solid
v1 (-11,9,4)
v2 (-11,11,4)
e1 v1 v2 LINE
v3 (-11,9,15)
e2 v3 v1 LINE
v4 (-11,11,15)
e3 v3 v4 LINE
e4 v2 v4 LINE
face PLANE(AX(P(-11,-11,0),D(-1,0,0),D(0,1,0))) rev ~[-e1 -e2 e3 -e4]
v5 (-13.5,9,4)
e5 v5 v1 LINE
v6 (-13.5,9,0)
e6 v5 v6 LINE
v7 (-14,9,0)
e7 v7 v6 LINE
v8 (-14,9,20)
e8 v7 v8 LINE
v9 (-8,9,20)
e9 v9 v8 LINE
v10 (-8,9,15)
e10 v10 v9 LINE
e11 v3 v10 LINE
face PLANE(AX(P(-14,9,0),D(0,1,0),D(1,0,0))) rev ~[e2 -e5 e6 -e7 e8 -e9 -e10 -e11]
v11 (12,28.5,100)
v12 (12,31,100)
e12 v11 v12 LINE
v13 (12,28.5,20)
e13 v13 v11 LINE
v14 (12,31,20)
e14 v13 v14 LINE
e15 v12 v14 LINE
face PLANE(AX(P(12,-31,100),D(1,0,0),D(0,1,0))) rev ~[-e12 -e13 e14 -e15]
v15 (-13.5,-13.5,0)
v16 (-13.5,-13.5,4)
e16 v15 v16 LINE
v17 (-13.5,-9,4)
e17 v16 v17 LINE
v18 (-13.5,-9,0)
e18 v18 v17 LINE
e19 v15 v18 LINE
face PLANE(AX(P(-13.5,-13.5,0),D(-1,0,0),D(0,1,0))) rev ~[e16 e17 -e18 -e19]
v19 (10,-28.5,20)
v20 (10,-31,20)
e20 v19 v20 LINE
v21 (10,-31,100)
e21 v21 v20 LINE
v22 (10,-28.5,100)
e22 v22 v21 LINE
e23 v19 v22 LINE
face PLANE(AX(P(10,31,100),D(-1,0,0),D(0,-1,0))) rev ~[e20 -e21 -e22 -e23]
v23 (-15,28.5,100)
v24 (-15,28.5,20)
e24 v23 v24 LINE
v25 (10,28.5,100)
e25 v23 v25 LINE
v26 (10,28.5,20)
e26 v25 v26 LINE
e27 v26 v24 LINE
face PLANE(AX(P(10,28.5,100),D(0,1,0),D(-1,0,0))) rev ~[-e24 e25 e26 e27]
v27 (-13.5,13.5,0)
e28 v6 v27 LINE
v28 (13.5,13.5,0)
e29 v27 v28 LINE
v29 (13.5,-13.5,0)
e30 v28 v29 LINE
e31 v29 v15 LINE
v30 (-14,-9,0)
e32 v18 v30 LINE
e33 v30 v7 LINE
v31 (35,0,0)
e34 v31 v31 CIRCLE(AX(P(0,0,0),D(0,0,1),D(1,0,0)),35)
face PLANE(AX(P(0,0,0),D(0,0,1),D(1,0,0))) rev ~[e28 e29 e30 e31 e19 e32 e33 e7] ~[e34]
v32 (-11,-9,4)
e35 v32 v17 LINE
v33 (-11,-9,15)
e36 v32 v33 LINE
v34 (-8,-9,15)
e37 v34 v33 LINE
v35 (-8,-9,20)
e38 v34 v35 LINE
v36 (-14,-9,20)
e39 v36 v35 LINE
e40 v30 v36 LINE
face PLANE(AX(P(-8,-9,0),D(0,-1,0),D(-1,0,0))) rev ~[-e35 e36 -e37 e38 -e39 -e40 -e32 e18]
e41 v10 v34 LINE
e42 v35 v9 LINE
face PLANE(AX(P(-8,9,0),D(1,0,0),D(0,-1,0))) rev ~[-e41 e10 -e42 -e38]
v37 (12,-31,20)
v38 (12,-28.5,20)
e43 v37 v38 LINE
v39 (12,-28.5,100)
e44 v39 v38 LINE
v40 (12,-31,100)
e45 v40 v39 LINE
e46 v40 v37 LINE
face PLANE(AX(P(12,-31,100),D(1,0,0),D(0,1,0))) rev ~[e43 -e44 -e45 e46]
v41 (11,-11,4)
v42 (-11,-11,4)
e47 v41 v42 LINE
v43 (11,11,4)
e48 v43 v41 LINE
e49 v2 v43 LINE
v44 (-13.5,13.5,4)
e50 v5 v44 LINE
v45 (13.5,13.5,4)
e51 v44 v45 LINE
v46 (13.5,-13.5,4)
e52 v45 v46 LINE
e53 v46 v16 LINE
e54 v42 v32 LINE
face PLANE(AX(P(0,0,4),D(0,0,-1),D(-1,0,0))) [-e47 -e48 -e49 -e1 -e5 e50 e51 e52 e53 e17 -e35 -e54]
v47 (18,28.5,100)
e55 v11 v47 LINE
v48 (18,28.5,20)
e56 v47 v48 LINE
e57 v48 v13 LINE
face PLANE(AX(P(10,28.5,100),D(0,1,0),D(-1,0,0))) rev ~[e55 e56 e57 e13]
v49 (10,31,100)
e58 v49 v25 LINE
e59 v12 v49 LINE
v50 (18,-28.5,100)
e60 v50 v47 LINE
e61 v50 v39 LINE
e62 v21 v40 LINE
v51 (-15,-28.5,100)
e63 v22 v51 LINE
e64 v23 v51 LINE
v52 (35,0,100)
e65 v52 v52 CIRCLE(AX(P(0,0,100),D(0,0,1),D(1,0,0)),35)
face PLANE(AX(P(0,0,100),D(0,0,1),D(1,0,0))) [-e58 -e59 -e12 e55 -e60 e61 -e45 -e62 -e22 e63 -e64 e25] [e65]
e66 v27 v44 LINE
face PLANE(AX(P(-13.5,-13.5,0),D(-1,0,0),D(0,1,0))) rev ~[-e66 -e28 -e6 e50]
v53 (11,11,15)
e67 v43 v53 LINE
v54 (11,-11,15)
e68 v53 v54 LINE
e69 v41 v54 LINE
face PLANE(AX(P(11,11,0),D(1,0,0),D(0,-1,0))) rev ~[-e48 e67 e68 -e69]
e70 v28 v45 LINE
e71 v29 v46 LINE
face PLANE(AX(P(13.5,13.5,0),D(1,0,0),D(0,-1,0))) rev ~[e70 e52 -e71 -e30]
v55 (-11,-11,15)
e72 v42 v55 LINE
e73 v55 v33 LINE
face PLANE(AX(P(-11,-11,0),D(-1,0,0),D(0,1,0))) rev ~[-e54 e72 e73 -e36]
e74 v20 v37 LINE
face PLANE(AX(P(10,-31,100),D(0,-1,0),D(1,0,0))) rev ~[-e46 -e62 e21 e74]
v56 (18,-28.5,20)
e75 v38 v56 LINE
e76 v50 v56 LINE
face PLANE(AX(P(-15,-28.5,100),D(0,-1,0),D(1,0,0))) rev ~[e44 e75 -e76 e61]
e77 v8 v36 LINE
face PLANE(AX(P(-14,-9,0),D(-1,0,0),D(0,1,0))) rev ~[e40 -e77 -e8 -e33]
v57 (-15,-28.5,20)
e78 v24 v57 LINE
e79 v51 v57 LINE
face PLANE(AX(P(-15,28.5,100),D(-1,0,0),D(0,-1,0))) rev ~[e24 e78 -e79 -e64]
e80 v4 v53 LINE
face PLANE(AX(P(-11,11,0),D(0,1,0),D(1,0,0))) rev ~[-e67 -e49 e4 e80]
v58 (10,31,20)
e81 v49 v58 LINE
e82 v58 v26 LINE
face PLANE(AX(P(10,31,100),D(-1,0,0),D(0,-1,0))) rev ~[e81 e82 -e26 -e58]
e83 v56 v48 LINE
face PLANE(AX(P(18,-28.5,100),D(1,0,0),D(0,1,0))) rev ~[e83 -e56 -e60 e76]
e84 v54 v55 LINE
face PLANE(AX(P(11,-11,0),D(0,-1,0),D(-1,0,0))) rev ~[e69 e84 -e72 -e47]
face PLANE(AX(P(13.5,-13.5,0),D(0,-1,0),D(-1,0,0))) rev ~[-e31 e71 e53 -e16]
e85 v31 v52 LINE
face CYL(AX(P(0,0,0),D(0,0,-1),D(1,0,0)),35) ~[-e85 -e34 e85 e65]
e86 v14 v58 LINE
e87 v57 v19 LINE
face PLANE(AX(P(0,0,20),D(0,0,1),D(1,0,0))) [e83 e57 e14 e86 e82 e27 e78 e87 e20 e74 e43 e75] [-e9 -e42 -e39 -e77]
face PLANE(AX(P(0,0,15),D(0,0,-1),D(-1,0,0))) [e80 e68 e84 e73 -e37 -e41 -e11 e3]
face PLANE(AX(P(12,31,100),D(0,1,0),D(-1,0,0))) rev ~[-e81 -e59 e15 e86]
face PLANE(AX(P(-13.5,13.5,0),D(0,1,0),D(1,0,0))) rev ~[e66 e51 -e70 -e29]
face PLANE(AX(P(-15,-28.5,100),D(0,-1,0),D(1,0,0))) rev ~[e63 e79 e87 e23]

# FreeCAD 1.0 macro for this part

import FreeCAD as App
import Part
import Sketcher

doc = App.newDocument("Part")
body = doc.addObject("PartDesign::Body", "Body")

# Sketch on XY plane
sketch1 = body.newObject("Sketcher::SketchObject", "Sketch")
sketch1.AttachmentSupport = (doc.getObject("XY_Plane"), [""])
sketch1.MapMode = "FlatFace"
sketch1.addGeometry(Part.Circle(App.Vector(0, 0, 0), App.Vector(0, 0, 1), 35), False)
sketch1.addConstraint([
    Sketcher.Constraint("Coincident", 0, 3, -1, 1),
    Sketcher.Constraint("Diameter", 0, 70.0),
])
pad1 = body.newObject("PartDesign::Pad", "Pad")
pad1.Profile = sketch1
pad1.Length = 100

# Sketch on XY plane
sketch2 = body.newObject("Sketcher::SketchObject", "Sketch001")
sketch2.AttachmentSupport = (doc.getObject("XY_Plane"), [""])
sketch2.MapMode = "FlatFace"
sketch2.AttachmentOffset = App.Placement(App.Vector(0, 0, 100), App.Rotation())
sketch2.addGeometry([
    Part.LineSegment(App.Vector(10, 31, 0), App.Vector(10, -31, 0)),
    Part.LineSegment(App.Vector(10, -31, 0), App.Vector(12, -31, 0)),
    Part.LineSegment(App.Vector(12, -31, 0), App.Vector(12, 31, 0)),
    Part.LineSegment(App.Vector(12, 31, 0), App.Vector(10, 31, 0)),
], False)
sketch2.addConstraint([
    Sketcher.Constraint("Coincident", 0, 2, 1, 1),
    Sketcher.Constraint("Coincident", 1, 2, 2, 1),
    Sketcher.Constraint("Coincident", 2, 2, 3, 1),
    Sketcher.Constraint("Coincident", 3, 2, 0, 1),
    Sketcher.Constraint("Vertical", 0),
    Sketcher.Constraint("Horizontal", 1),
    Sketcher.Constraint("Vertical", 2),
    Sketcher.Constraint("Horizontal", 3),
    Sketcher.Constraint("DistanceX", 1, 1, 1, 2, 2.0),
    Sketcher.Constraint("DistanceY", 0, 2, 0, 1, 62.0),
    Sketcher.Constraint("DistanceX", -1, 1, 0, 2, 10.0),
    Sketcher.Constraint("DistanceY", 0, 2, -1, 1, 31.0),
])
pocket1 = body.newObject("PartDesign::Pocket", "Pocket")
pocket1.Profile = sketch2
pocket1.Length = 80

# Sketch on XY plane
sketch3 = body.newObject("Sketcher::SketchObject", "Sketch002")
sketch3.AttachmentSupport = (doc.getObject("XY_Plane"), [""])
sketch3.MapMode = "FlatFace"
sketch3.AttachmentOffset = App.Placement(App.Vector(0, 0, 100), App.Rotation())
sketch3.addGeometry([
    Part.LineSegment(App.Vector(-15, 28, 0), App.Vector(-15, -28, 0)),
    Part.LineSegment(App.Vector(-15, -28, 0), App.Vector(18, -28, 0)),
    Part.LineSegment(App.Vector(18, -28, 0), App.Vector(18, 28, 0)),
    Part.LineSegment(App.Vector(18, 28, 0), App.Vector(-15, 28, 0)),
], False)
sketch3.addConstraint([
    Sketcher.Constraint("Coincident", 0, 2, 1, 1),
    Sketcher.Constraint("Coincident", 1, 2, 2, 1),
    Sketcher.Constraint("Coincident", 2, 2, 3, 1),
    Sketcher.Constraint("Coincident", 3, 2, 0, 1),
    Sketcher.Constraint("Vertical", 0),
    Sketcher.Constraint("Horizontal", 1),
    Sketcher.Constraint("Vertical", 2),
    Sketcher.Constraint("Horizontal", 3),
    Sketcher.Constraint("DistanceY", 0, 2, 0, 1, 57.0),
    Sketcher.Constraint("DistanceX", 1, 1, 1, 2, 33.0),
    Sketcher.Constraint("DistanceX", 0, 2, -1, 1, 15.0),
    Sketcher.Constraint("DistanceY", 0, 2, -1, 1, 28.5),
])
pocket2 = body.newObject("PartDesign::Pocket", "Pocket001")
pocket2.Profile = sketch3
pocket2.Length = 80

# Sketch on XY plane
sketch4 = body.newObject("Sketcher::SketchObject", "Sketch003")
sketch4.AttachmentSupport = (doc.getObject("XY_Plane"), [""])
sketch4.MapMode = "FlatFace"
sketch4.addGeometry([
    Part.LineSegment(App.Vector(14, 14, 0), App.Vector(14, -14, 0)),
    Part.LineSegment(App.Vector(14, -14, 0), App.Vector(-14, -14, 0)),
    Part.LineSegment(App.Vector(-14, -14, 0), App.Vector(-14, 14, 0)),
    Part.LineSegment(App.Vector(-14, 14, 0), App.Vector(14, 14, 0)),
], False)
sketch4.addConstraint([
    Sketcher.Constraint("Coincident", 0, 2, 1, 1),
    Sketcher.Constraint("Coincident", 1, 2, 2, 1),
    Sketcher.Constraint("Coincident", 2, 2, 3, 1),
    Sketcher.Constraint("Coincident", 3, 2, 0, 1),
    Sketcher.Constraint("Vertical", 0),
    Sketcher.Constraint("Horizontal", 1),
    Sketcher.Constraint("Vertical", 2),
    Sketcher.Constraint("Horizontal", 3),
    Sketcher.Constraint("Symmetric", 0, 2, 2, 2, -1, 1),
    Sketcher.Constraint("Equal", 3, 0),
    Sketcher.Constraint("DistanceX", 1, 2, 1, 1, 27.0),
])
pocket3 = body.newObject("PartDesign::Pocket", "Pocket002")
pocket3.Profile = sketch4
pocket3.Length = 4
pocket3.Reversed = True

# Sketch on XY plane
sketch5 = body.newObject("Sketcher::SketchObject", "Sketch004")
sketch5.AttachmentSupport = (doc.getObject("XY_Plane"), [""])
sketch5.MapMode = "FlatFace"
sketch5.addGeometry([
    Part.LineSegment(App.Vector(11, 11, 0), App.Vector(11, -11, 0)),
    Part.LineSegment(App.Vector(11, -11, 0), App.Vector(-11, -11, 0)),
    Part.LineSegment(App.Vector(-11, -11, 0), App.Vector(-11, 11, 0)),
    Part.LineSegment(App.Vector(-11, 11, 0), App.Vector(11, 11, 0)),
], False)
sketch5.addConstraint([
    Sketcher.Constraint("Coincident", 0, 2, 1, 1),
    Sketcher.Constraint("Coincident", 1, 2, 2, 1),
    Sketcher.Constraint("Coincident", 2, 2, 3, 1),
    Sketcher.Constraint("Coincident", 3, 2, 0, 1),
    Sketcher.Constraint("Vertical", 0),
    Sketcher.Constraint("Horizontal", 1),
    Sketcher.Constraint("Vertical", 2),
    Sketcher.Constraint("Horizontal", 3),
    Sketcher.Constraint("Symmetric", 0, 2, 2, 2, -1, 1),
    Sketcher.Constraint("Equal", 3, 0),
    Sketcher.Constraint("DistanceX", 1, 2, 1, 1, 22.0),
])
pocket4 = body.newObject("PartDesign::Pocket", "Pocket003")
pocket4.Profile = sketch5
pocket4.Length = 15
pocket4.Reversed = True

# Sketch on XY plane
sketch6 = body.newObject("Sketcher::SketchObject", "Sketch005")
sketch6.AttachmentSupport = (doc.getObject("XY_Plane"), [""])
sketch6.MapMode = "FlatFace"
sketch6.addGeometry([
    Part.LineSegment(App.Vector(-14, -9, 0), App.Vector(-14, 9, 0)),
    Part.LineSegment(App.Vector(-14, 9, 0), App.Vector(-8, 9, 0)),
    Part.LineSegment(App.Vector(-8, 9, 0), App.Vector(-8, -9, 0)),
    Part.LineSegment(App.Vector(-8, -9, 0), App.Vector(-14, -9, 0)),
], False)
sketch6.addConstraint([
    Sketcher.Constraint("Coincident", 0, 2, 1, 1),
    Sketcher.Constraint("Coincident", 1, 2, 2, 1),
    Sketcher.Constraint("Coincident", 2, 2, 3, 1),
    Sketcher.Constraint("Coincident", 3, 2, 0, 1),
    Sketcher.Constraint("Vertical", 0),
    Sketcher.Constraint("Horizontal", 1),
    Sketcher.Constraint("Vertical", 2),
    Sketcher.Constraint("Horizontal", 3),
    Sketcher.Constraint("DistanceX", 1, 1, 1, 2, 6.0),
    Sketcher.Constraint("DistanceY", 0, 1, 0, 2, 18.0),
    Sketcher.Constraint("DistanceX", 1, 2, -1, 1, 8.0),
    Sketcher.Constraint("DistanceY", -1, 1, 0, 2, 9.0),
])
pocket5 = body.newObject("PartDesign::Pocket", "Pocket004")
pocket5.Profile = sketch6
pocket5.Type = "ThroughAll"
pocket5.Reversed = True

doc.recompute()
